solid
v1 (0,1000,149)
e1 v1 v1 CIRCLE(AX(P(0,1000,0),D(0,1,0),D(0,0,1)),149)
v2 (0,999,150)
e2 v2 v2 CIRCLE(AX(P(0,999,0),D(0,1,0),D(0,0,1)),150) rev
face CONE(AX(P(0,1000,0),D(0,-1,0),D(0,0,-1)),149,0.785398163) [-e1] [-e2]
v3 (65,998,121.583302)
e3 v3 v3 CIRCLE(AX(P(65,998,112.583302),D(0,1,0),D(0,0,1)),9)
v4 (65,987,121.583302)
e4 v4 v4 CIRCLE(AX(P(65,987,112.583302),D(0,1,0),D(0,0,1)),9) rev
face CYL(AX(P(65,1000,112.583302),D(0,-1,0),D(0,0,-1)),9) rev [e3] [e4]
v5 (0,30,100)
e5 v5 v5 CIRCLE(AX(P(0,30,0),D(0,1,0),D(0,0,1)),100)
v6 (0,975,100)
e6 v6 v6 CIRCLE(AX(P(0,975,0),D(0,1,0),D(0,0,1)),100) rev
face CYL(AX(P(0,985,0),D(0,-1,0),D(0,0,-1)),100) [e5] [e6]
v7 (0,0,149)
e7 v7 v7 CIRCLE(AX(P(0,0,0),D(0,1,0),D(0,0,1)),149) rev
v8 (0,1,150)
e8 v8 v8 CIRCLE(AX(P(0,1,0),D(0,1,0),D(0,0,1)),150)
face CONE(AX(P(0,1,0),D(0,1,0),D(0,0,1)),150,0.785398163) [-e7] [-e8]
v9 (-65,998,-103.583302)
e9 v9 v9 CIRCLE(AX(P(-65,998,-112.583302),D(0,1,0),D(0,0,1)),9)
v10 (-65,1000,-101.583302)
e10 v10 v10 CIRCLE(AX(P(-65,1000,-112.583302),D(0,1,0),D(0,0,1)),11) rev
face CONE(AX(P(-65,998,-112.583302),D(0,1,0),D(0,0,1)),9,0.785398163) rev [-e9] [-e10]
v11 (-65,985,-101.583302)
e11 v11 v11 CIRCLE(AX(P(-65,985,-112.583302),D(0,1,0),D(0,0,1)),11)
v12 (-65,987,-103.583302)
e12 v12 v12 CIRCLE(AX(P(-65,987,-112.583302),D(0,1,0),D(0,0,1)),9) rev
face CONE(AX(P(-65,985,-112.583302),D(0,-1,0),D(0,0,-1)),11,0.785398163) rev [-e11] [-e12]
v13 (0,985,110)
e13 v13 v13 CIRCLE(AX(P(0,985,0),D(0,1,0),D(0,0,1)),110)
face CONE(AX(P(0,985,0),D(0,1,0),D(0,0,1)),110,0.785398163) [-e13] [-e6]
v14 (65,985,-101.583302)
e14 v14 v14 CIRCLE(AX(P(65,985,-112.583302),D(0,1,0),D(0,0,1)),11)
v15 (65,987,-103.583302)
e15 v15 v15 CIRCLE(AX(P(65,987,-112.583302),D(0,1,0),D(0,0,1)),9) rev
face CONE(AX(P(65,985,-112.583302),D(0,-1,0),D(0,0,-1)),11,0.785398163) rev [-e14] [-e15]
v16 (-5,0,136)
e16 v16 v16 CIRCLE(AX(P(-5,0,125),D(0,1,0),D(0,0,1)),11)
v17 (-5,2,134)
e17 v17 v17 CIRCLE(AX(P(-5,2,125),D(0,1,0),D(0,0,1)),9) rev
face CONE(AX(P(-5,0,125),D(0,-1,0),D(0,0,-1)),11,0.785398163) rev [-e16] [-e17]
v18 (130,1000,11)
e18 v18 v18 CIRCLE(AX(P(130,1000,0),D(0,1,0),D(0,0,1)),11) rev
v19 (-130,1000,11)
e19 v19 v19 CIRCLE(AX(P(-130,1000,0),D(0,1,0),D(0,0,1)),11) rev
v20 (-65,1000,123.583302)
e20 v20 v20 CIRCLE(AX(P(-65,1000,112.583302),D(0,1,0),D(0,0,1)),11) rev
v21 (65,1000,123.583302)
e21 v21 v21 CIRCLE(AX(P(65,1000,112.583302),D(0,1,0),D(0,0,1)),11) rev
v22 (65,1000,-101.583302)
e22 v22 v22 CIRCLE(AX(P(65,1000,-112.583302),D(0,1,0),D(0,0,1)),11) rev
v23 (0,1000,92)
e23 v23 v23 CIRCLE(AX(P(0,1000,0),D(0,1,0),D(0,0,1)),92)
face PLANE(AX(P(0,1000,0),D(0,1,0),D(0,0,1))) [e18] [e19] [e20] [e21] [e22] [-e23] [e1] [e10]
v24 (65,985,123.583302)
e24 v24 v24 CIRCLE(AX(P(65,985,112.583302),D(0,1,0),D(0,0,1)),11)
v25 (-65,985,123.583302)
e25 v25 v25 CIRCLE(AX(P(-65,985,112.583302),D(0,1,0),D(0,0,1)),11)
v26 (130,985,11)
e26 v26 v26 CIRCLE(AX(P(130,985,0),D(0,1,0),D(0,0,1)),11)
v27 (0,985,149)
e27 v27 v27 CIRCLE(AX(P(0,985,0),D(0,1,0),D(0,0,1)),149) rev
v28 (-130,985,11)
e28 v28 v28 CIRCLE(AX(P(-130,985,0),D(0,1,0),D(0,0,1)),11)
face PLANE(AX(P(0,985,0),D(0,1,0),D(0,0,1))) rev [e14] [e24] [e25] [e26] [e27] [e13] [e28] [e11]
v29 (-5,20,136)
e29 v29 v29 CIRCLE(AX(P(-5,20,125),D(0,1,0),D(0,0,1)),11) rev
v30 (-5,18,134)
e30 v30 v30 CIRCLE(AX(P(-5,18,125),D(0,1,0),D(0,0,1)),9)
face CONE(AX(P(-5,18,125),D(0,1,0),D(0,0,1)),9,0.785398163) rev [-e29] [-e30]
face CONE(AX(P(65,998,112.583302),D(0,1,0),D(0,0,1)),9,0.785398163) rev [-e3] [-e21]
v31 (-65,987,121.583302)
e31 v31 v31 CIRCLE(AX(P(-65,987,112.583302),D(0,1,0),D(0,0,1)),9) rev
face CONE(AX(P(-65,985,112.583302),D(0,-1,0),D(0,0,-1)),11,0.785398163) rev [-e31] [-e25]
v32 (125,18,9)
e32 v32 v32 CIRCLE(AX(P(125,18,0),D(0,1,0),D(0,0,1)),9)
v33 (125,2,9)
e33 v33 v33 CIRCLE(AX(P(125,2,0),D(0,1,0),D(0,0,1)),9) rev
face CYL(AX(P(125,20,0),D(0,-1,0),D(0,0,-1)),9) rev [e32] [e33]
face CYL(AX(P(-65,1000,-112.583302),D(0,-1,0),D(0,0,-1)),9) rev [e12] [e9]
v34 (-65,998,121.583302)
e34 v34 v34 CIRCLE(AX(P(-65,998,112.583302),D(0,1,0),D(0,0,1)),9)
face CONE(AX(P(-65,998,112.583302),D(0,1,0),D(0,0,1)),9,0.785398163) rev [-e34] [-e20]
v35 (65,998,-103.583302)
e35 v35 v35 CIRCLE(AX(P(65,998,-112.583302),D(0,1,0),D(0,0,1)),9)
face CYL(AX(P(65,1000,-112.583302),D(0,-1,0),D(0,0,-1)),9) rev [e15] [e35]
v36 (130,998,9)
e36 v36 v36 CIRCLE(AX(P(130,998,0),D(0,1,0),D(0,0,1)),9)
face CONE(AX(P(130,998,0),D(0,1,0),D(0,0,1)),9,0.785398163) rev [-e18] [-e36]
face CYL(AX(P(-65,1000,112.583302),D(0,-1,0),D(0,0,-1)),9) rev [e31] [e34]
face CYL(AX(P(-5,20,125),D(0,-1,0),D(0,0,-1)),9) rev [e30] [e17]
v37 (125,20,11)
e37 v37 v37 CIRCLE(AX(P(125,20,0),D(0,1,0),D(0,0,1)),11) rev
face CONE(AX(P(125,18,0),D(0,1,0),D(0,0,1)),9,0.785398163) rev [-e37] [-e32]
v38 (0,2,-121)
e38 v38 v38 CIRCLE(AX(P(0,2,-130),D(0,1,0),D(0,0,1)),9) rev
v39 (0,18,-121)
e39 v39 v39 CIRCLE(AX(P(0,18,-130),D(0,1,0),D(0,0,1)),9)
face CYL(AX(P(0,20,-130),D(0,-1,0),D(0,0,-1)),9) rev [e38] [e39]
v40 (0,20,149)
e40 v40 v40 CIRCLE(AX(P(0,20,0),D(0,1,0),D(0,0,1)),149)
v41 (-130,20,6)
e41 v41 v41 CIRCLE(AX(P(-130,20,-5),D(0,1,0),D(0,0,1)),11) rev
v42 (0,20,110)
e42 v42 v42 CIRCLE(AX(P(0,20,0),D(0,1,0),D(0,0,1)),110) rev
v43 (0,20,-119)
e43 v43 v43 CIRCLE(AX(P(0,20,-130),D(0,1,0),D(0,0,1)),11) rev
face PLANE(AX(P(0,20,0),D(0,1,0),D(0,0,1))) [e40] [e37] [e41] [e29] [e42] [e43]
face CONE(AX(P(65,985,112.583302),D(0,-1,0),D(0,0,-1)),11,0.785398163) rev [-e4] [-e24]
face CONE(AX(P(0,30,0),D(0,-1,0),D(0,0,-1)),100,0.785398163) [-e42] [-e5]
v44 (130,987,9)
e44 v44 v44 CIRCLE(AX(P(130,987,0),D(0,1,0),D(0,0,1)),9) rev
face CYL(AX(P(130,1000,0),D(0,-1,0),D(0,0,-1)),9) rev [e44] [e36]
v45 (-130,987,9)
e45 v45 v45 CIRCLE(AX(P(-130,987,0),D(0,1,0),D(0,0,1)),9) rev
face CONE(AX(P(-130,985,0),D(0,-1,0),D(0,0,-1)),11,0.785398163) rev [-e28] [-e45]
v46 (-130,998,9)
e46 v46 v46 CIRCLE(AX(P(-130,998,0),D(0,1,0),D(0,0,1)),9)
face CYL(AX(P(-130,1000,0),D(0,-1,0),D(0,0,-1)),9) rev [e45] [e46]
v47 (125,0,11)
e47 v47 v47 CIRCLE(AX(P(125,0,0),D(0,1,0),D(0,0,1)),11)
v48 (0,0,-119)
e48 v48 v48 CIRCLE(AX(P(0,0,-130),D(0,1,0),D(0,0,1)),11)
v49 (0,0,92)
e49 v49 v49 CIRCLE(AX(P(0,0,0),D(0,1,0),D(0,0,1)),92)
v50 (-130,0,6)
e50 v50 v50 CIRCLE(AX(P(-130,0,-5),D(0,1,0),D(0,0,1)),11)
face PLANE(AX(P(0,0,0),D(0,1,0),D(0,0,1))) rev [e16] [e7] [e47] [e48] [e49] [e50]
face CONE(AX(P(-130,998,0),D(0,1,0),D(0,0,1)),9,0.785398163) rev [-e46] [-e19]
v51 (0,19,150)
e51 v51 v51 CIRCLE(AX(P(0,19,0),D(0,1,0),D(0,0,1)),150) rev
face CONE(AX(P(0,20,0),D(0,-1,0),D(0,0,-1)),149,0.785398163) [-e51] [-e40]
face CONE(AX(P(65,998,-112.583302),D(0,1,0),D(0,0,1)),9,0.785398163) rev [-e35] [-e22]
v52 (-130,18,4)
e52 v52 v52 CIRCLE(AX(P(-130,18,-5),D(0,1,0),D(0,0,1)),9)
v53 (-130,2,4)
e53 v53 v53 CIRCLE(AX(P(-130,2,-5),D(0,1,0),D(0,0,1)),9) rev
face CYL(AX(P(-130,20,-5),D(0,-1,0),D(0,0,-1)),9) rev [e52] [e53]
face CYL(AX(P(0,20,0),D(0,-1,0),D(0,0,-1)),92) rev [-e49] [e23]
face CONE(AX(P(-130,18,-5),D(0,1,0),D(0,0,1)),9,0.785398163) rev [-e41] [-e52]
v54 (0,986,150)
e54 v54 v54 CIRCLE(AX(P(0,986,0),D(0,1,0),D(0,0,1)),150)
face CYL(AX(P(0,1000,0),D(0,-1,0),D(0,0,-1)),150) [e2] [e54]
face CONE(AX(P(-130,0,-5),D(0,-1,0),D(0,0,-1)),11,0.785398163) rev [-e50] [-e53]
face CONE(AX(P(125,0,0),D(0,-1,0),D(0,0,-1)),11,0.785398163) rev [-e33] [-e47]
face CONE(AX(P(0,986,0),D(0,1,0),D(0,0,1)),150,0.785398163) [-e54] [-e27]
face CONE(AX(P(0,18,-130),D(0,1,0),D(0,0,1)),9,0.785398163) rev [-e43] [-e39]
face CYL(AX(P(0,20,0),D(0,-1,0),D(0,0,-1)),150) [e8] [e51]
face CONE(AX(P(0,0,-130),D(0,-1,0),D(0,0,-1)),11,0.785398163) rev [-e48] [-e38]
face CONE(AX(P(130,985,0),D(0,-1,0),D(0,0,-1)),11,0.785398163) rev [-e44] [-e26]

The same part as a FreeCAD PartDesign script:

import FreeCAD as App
import Part
import Sketcher

V = App.Vector
Q = App.Units.Quantity


def edges_at(feature, points):
    """Names of the edges that pass closest to the given points."""
    edges = feature.Shape.Edges
    near = lambda p: min(range(len(edges)), key=lambda i: edges[i].distToShape(Part.Vertex(*p))[0])
    return sorted({f"Edge{near(p) + 1}" for p in points})

doc = App.newDocument("Part")
params = doc.addObject("Spreadsheet::Sheet", "Params")
for row, (alias, value) in enumerate([
    ("sketch1_diameter", "300 mm"),
    ("sketch1_diameter2", "18 mm"),
    ("sketch1_diameter3", "184 mm"),
    ("pad1_length", "20 mm"),
    ("sketch2_diameter", "200 mm"),
    ("sketch2_diameter2", "184 mm"),
    ("pad2_length", "965 mm"),
    ("sketch3_diameter", "300 mm"),
    ("sketch3_diameter2", "18 mm"),
    ("sketch3_diameter3", "184 mm"),
    ("pad3_length", "15 mm"),
    ("chamfer_size", "10 mm"),
    ("chamfer2_size", "1 mm"),
    ("chamfer3_size", "2 mm"),
], start=1):
    params.set(f"A{row}", alias)
    params.set(f"B{row}", "=" + value)
    params.setAlias(f"B{row}", alias)

body = doc.addObject("PartDesign::Body", "Body")

# Sketch on XZ plane
sketch1 = body.newObject("Sketcher::SketchObject", "Sketch")
sketch1.AttachmentSupport = (doc.getObject("XZ_Plane"), [""])
sketch1.MapMode = "FlatFace"
sketch1.addGeometry(Part.Circle(V(0, 0, 0), V(0, 0, 1), 150), False)
sketch1.addGeometry(Part.Circle(V(-130, -5, 0), V(0, 0, 1), 9), False)
sketch1.addGeometry(Part.Circle(V(-5, 125, 0), V(0, 0, 1), 9), False)
sketch1.addGeometry(Part.Circle(V(0, -130, 0), V(0, 0, 1), 9), False)
sketch1.addGeometry(Part.Circle(V(0, 0, 0), V(0, 0, 1), 92), False)
sketch1.addGeometry(Part.Circle(V(125, 0, 0), V(0, 0, 1), 9), False)
sketch1.addConstraint(Sketcher.Constraint("Coincident", 0, 3, -1, 1))
sketch1.addConstraint(Sketcher.Constraint("Coincident", 4, 3, -1, 1))
sketch1.addConstraint(Sketcher.Constraint("Equal", 1, 2))
sketch1.addConstraint(Sketcher.Constraint("Equal", 2, 3))
sketch1.addConstraint(Sketcher.Constraint("Equal", 3, 5))
sketch1.addConstraint(Sketcher.Constraint("PointOnObject", 3, 3, -2))
sketch1.addConstraint(Sketcher.Constraint("PointOnObject", 5, 3, -1))
sketch1.addConstraint(Sketcher.Constraint("Diameter", 0, Q("300 mm")))
sketch1.addConstraint(Sketcher.Constraint("Diameter", 1, Q("18 mm")))
sketch1.addConstraint(Sketcher.Constraint("Diameter", 4, Q("184 mm")))
sketch1.addConstraint(Sketcher.Constraint("DistanceX", 1, 3, -1, 1, Q("130 mm")))
sketch1.addConstraint(Sketcher.Constraint("DistanceY", 1, 3, -1, 1, Q("5 mm")))
sketch1.addConstraint(Sketcher.Constraint("DistanceX", 2, 3, -1, 1, Q("5 mm")))
sketch1.addConstraint(Sketcher.Constraint("DistanceY", -1, 1, 2, 3, Q("125 mm")))
sketch1.addConstraint(Sketcher.Constraint("DistanceY", 3, 3, -1, 1, Q("130 mm")))
sketch1.addConstraint(Sketcher.Constraint("DistanceX", -1, 1, 5, 3, Q("125 mm")))
sketch1.setExpression("Constraints[7]", "Params.sketch1_diameter")
sketch1.setExpression("Constraints[8]", "Params.sketch1_diameter2")
sketch1.setExpression("Constraints[9]", "Params.sketch1_diameter3")
pad1 = body.newObject("PartDesign::Pad", "Pad")
pad1.Profile = sketch1
pad1.setExpression("Length", "Params.pad1_length")
pad1.Reversed = True

# Sketch on XZ plane
sketch2 = body.newObject("Sketcher::SketchObject", "Sketch001")
sketch2.AttachmentSupport = (doc.getObject("XZ_Plane"), [""])
sketch2.MapMode = "FlatFace"
sketch2.AttachmentOffset = App.Placement(V(0, 0, -20), App.Rotation())
sketch2.addGeometry(Part.Circle(V(0, 0, 0), V(0, 0, 1), 100), False)
sketch2.addGeometry(Part.Circle(V(0, 0, 0), V(0, 0, 1), 92), False)
sketch2.addConstraint(Sketcher.Constraint("Coincident", 0, 3, -1, 1))
sketch2.addConstraint(Sketcher.Constraint("Coincident", 1, 3, -1, 1))
sketch2.addConstraint(Sketcher.Constraint("Diameter", 0, Q("200 mm")))
sketch2.addConstraint(Sketcher.Constraint("Diameter", 1, Q("184 mm")))
sketch2.setExpression("Constraints[2]", "Params.sketch2_diameter")
sketch2.setExpression("Constraints[3]", "Params.sketch2_diameter2")
pad2 = body.newObject("PartDesign::Pad", "Pad001")
pad2.Profile = sketch2
pad2.setExpression("Length", "Params.pad2_length")
pad2.Reversed = True

# Sketch on XZ plane
sketch3 = body.newObject("Sketcher::SketchObject", "Sketch002")
sketch3.AttachmentSupport = (doc.getObject("XZ_Plane"), [""])
sketch3.MapMode = "FlatFace"
sketch3.AttachmentOffset = App.Placement(V(0, 0, -985), App.Rotation())
sketch3.addGeometry(Part.Circle(V(0, 0, 0), V(0, 0, 1), 150), False)
sketch3.addGeometry(Part.Circle(V(-65, -113, 0), V(0, 0, 1), 9), False)
sketch3.addGeometry(Part.Circle(V(-130, 0, 0), V(0, 0, 1), 9), False)
sketch3.addGeometry(Part.Circle(V(-65, 113, 0), V(0, 0, 1), 9), False)
sketch3.addGeometry(Part.Circle(V(65, -113, 0), V(0, 0, 1), 9), False)
sketch3.addGeometry(Part.Circle(V(130, 0, 0), V(0, 0, 1), 9), False)
sketch3.addGeometry(Part.Circle(V(0, 0, 0), V(0, 0, 1), 92), False)
sketch3.addGeometry(Part.Circle(V(65, 113, 0), V(0, 0, 1), 9), False)
sketch3.addConstraint(Sketcher.Constraint("Coincident", 0, 3, -1, 1))
sketch3.addConstraint(Sketcher.Constraint("Coincident", 6, 3, -1, 1))
sketch3.addConstraint(Sketcher.Constraint("Equal", 1, 2))
sketch3.addConstraint(Sketcher.Constraint("Equal", 2, 3))
sketch3.addConstraint(Sketcher.Constraint("Equal", 3, 4))
sketch3.addConstraint(Sketcher.Constraint("Equal", 4, 5))
sketch3.addConstraint(Sketcher.Constraint("Equal", 5, 7))
sketch3.addConstraint(Sketcher.Constraint("Symmetric", 3, 3, 4, 3, -1, 1))
sketch3.addConstraint(Sketcher.Constraint("Symmetric", 2, 3, 5, 3, -1, 1))
sketch3.addConstraint(Sketcher.Constraint("Symmetric", 1, 3, 7, 3, -1, 1))
sketch3.addConstraint(Sketcher.Constraint("Symmetric", 1, 3, 4, 3, -2))
sketch3.addConstraint(Sketcher.Constraint("PointOnObject", 2, 3, -1))
sketch3.addConstraint(Sketcher.Constraint("Diameter", 0, Q("300 mm")))
sketch3.addConstraint(Sketcher.Constraint("Diameter", 1, Q("18 mm")))
sketch3.addConstraint(Sketcher.Constraint("Diameter", 6, Q("184 mm")))
sketch3.addConstraint(Sketcher.Constraint("DistanceX", 1, 3, -1, 1, Q("65 mm")))
sketch3.addConstraint(Sketcher.Constraint("DistanceX", 2, 3, -1, 1, Q("130 mm")))
sketch3.addConstraint(Sketcher.Constraint("DistanceY", 1, 3, -1, 1, Q("112.583302 mm")))
sketch3.setExpression("Constraints[12]", "Params.sketch3_diameter")
sketch3.setExpression("Constraints[13]", "Params.sketch3_diameter2")
sketch3.setExpression("Constraints[14]", "Params.sketch3_diameter3")
pad3 = body.newObject("PartDesign::Pad", "Pad002")
pad3.Profile = sketch3
pad3.setExpression("Length", "Params.pad3_length")
pad3.Reversed = True
doc.recompute()

chamfer = body.newObject("PartDesign::Chamfer", "Chamfer")
chamfer.Base = (pad3, edges_at(pad3, [(0, 985, -100), (0, 20, -100)]))
chamfer.setExpression("Size", "Params.chamfer_size")
doc.recompute()

chamfer2 = body.newObject("PartDesign::Chamfer", "Chamfer001")
chamfer2.Base = (chamfer, edges_at(chamfer, [
    (0, 0, -150),
    (0, 1000, -150),
    (0, 985, -150),
    (0, 20, -150),
]))
chamfer2.setExpression("Size", "Params.chamfer2_size")
doc.recompute()

chamfer3 = body.newObject("PartDesign::Chamfer", "Chamfer002")
chamfer3.Base = (chamfer2, edges_at(chamfer2, [
    (125, 0, -9),
    (125, 20, -9),
    (-5, 0, 116),
    (-5, 20, 116),
    (-130, 0, -14),
    (-130, 20, -14),
    (130, 985, -9),
    (65, 985, 103.583),
    (-65, 985, 103.583),
    (-130, 985, -9),
    (-65, 985, -121.583),
    (65, 985, -121.583),
    (130, 1000, -9),
    (65, 1000, 103.583),
    (-65, 1000, 103.583),
    (-130, 1000, -9),
    (-65, 1000, -121.583),
    (65, 1000, -121.583),
    (0, 0, -139),
    (0, 20, -139),
]))
chamfer3.setExpression("Size", "Params.chamfer3_size")

doc.recompute()
